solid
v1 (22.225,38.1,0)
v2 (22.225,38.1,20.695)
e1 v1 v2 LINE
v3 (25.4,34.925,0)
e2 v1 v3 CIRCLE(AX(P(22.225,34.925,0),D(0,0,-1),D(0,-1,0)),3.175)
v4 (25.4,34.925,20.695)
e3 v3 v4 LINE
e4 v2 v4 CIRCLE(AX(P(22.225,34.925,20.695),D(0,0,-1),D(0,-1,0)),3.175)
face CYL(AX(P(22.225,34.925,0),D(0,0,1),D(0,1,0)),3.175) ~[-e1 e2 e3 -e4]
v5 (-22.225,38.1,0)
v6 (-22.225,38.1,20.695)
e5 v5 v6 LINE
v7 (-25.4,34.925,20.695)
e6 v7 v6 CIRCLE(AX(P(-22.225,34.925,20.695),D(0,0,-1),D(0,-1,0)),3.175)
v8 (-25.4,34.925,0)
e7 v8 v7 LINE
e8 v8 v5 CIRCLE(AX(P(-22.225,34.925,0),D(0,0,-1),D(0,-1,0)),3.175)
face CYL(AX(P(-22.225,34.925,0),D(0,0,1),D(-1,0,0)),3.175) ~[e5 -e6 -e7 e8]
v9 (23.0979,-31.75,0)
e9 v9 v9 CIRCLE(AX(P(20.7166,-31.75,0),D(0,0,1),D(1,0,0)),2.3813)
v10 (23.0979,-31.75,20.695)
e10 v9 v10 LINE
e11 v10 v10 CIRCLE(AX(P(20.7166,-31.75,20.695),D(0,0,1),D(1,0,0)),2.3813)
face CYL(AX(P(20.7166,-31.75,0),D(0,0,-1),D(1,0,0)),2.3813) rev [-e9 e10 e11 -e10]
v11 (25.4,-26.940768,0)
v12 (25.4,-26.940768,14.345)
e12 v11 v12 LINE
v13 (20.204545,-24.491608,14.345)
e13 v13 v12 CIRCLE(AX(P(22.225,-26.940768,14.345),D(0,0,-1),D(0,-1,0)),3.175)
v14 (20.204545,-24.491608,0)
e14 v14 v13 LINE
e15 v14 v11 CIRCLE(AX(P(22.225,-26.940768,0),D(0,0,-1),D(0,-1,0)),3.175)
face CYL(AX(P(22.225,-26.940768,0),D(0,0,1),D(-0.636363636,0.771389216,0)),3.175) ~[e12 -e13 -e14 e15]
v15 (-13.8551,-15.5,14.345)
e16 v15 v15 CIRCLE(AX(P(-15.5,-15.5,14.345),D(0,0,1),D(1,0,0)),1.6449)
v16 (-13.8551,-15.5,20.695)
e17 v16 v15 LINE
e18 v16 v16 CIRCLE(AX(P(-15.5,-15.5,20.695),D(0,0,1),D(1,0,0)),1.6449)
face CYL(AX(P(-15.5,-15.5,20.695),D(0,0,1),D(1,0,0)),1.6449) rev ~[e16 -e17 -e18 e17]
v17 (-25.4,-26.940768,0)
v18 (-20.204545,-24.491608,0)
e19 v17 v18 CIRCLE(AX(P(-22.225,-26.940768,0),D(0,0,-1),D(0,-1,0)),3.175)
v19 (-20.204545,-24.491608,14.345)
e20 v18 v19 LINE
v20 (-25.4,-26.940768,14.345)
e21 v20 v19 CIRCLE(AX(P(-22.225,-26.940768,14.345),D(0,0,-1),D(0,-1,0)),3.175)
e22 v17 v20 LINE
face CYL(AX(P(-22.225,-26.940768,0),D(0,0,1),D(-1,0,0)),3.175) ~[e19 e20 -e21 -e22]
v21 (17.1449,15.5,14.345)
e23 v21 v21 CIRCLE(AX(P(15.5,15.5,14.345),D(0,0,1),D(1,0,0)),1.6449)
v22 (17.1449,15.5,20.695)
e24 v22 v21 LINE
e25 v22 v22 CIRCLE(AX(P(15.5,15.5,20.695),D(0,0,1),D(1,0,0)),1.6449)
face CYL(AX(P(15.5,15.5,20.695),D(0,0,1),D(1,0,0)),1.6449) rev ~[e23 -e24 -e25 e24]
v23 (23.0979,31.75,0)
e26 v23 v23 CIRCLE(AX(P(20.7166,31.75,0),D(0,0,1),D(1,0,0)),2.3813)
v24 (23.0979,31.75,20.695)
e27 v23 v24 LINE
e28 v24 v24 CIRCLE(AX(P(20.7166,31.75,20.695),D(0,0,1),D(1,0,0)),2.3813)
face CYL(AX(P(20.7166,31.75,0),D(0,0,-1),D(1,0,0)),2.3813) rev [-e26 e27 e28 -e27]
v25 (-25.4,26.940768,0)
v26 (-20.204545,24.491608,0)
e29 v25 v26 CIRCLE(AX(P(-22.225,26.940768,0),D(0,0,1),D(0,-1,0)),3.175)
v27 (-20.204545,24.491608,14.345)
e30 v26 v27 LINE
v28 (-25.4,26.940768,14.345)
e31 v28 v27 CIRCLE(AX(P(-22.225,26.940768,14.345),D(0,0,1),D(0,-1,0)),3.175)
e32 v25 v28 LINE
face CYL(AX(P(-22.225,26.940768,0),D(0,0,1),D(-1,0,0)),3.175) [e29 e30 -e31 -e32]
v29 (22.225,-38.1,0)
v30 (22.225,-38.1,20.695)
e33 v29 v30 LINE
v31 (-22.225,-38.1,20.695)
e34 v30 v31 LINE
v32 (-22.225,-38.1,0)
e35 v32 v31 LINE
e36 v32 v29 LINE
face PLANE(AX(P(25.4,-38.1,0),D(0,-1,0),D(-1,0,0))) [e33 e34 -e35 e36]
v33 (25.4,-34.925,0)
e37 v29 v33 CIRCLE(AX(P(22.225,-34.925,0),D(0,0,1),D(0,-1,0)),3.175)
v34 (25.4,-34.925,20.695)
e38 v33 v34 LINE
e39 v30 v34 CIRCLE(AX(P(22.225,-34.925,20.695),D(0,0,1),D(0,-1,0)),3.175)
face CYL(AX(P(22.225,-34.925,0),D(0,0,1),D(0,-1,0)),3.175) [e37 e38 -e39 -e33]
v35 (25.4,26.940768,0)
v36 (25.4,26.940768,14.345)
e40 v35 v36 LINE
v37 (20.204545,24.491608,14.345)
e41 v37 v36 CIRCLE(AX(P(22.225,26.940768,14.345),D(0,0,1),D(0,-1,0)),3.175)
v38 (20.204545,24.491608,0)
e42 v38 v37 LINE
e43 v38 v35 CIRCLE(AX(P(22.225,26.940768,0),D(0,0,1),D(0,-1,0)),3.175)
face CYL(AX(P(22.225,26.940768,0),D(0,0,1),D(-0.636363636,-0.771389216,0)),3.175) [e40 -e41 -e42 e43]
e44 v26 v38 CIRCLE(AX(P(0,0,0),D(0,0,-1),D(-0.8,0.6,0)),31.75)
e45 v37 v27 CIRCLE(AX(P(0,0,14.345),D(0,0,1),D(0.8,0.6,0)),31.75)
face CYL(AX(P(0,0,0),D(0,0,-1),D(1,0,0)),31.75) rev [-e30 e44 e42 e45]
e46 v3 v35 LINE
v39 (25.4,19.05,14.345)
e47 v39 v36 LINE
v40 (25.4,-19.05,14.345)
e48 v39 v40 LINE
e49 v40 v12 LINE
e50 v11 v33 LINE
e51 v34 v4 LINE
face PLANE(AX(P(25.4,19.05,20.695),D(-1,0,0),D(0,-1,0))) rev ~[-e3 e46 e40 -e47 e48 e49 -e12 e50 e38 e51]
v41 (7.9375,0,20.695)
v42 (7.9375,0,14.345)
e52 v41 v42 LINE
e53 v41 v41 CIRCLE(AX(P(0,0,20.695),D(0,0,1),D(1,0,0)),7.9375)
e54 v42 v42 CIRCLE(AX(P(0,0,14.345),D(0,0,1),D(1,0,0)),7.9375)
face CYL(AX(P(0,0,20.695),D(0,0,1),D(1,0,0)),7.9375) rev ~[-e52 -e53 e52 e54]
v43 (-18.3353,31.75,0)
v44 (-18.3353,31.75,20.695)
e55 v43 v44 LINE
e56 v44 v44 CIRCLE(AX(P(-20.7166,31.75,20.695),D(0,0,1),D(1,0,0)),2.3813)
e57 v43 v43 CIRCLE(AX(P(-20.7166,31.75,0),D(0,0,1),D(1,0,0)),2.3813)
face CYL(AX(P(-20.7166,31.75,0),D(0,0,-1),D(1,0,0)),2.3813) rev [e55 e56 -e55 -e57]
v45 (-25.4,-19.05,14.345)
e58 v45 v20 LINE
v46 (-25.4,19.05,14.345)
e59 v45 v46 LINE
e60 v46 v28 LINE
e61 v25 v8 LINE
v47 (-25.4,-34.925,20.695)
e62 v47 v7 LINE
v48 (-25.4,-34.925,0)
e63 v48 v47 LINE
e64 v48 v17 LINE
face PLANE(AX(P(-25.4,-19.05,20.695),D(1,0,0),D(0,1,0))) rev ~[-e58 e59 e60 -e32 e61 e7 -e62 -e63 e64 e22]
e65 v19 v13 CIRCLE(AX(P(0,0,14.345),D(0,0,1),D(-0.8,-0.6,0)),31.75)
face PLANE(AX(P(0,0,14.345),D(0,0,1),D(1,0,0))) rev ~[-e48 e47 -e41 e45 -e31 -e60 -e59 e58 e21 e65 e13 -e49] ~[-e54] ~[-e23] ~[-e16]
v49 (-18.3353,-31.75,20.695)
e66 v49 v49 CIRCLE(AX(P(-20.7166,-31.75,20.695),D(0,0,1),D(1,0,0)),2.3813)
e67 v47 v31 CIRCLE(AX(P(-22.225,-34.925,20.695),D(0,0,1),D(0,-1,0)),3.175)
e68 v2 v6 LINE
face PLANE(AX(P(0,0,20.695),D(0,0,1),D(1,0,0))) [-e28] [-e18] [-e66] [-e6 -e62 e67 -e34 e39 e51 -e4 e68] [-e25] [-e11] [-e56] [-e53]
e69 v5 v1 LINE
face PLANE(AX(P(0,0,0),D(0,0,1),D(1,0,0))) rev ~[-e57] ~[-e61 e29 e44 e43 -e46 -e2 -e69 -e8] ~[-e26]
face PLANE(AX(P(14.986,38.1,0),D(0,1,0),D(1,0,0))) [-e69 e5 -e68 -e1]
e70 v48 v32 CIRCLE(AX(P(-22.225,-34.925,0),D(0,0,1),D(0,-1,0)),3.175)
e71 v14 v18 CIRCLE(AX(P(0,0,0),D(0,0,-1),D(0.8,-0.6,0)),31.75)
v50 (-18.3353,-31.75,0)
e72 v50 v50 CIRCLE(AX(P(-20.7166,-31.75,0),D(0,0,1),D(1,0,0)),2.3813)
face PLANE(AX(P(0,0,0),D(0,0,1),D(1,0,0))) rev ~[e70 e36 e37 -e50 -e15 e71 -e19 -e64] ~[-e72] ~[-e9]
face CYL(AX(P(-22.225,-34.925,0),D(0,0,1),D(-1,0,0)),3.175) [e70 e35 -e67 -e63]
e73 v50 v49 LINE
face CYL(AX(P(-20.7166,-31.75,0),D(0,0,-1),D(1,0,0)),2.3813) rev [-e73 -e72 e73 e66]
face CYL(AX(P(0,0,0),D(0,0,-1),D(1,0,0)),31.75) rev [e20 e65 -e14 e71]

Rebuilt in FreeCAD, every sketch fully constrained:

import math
import FreeCAD as App
import Part
import Sketcher

V = App.Vector
Q = App.Units.Quantity


def edges_at(feature, points):
    """Names of the edges that pass closest to the given points."""
    edges = feature.Shape.Edges
    near = lambda p: min(range(len(edges)), key=lambda i: edges[i].distToShape(Part.Vertex(*p))[0])
    return sorted({f"Edge{near(p) + 1}" for p in points})

doc = App.newDocument("Part")
body = doc.addObject("PartDesign::Body", "Body")
body.AllowCompound = True

sketch1 = doc.addObject("Sketcher::SketchObject", "Sketch")
body.addObject(sketch1)
sketch1.AttachmentSupport = (doc.XY_Plane, [""])
sketch1.MapMode = "FlatFace"
sketch1.addGeometry(Part.LineSegment(V(25.4, 19.05, 0), V(25.4, 38.1, 0)), False)
sketch1.addGeometry(Part.LineSegment(V(25.4, 38.1, 0), V(-25.4, 38.1, 0)), False)
sketch1.addGeometry(Part.LineSegment(V(-25.4, 38.1, 0), V(-25.4, 19.05, 0)), False)
sketch1.addGeometry(Part.ArcOfCircle(Part.Circle(V(0, 0, 0), V(0, 0, 1), 31.75), math.radians(36.869898), math.radians(143.130102)), False)
sketch1.addGeometry(Part.Circle(V(20.7166, 31.75, 0), V(0, 0, 1), 2.3813), False)
sketch1.addGeometry(Part.Circle(V(-20.7166, 31.75, 0), V(0, 0, 1), 2.3813), False)
sketch1.addGeometry(Part.LineSegment(V(25.4, -38.1, 0), V(25.4, -19.05, 0)), False)
sketch1.addGeometry(Part.ArcOfCircle(Part.Circle(V(0, 0, 0), V(0, 0, 1), 31.75), math.radians(-143.130102), math.radians(-36.869898)), False)
sketch1.addGeometry(Part.LineSegment(V(-25.4, -19.05, 0), V(-25.4, -38.1, 0)), False)
sketch1.addGeometry(Part.LineSegment(V(-25.4, -38.1, 0), V(25.4, -38.1, 0)), False)
sketch1.addGeometry(Part.Circle(V(20.7166, -31.75, 0), V(0, 0, 1), 2.3813), False)
sketch1.addGeometry(Part.Circle(V(-20.7166, -31.75, 0), V(0, 0, 1), 2.3813), False)
sketch1.addConstraint(Sketcher.Constraint("Coincident", 0, 2, 1, 1))
sketch1.addConstraint(Sketcher.Constraint("Coincident", 1, 2, 2, 1))
sketch1.addConstraint(Sketcher.Constraint("Coincident", 2, 2, 3, 2))
sketch1.addConstraint(Sketcher.Constraint("Coincident", 3, 1, 0, 1))
sketch1.addConstraint(Sketcher.Constraint("Coincident", 6, 2, 7, 2))
sketch1.addConstraint(Sketcher.Constraint("Coincident", 7, 1, 8, 1))
sketch1.addConstraint(Sketcher.Constraint("Coincident", 8, 2, 9, 1))
sketch1.addConstraint(Sketcher.Constraint("Coincident", 9, 2, 6, 1))
sketch1.addConstraint(Sketcher.Constraint("Vertical", 0))
sketch1.addConstraint(Sketcher.Constraint("Horizontal", 1))
sketch1.addConstraint(Sketcher.Constraint("Vertical", 2))
sketch1.addConstraint(Sketcher.Constraint("Vertical", 6))
sketch1.addConstraint(Sketcher.Constraint("Vertical", 8))
sketch1.addConstraint(Sketcher.Constraint("Horizontal", 9))
sketch1.addConstraint(Sketcher.Constraint("Coincident", 3, 3, -1, 1))
sketch1.addConstraint(Sketcher.Constraint("Coincident", 7, 3, -1, 1))
sketch1.addConstraint(Sketcher.Constraint("Equal", 4, 5))
sketch1.addConstraint(Sketcher.Constraint("Equal", 3, 7))
sketch1.addConstraint(Sketcher.Constraint("Equal", 5, 10))
sketch1.addConstraint(Sketcher.Constraint("Equal", 10, 11))
sketch1.addConstraint(Sketcher.Constraint("Symmetric", 5, 3, 10, 3, -1, 1))
sketch1.addConstraint(Sketcher.Constraint("Symmetric", 4, 3, 11, 3, -1, 1))
sketch1.addConstraint(Sketcher.Constraint("Symmetric", 0, 2, 8, 2, -1, 1))
sketch1.addConstraint(Sketcher.Constraint("Symmetric", 4, 3, 5, 3, -2))
sketch1.addConstraint(Sketcher.Constraint("Horizontal", 2, 2, 3, 1))
sketch1.addConstraint(Sketcher.Constraint("Horizontal", 6, 2, 7, 1))
sketch1.addConstraint(Sketcher.Constraint("DistanceX", 1, 2, 1, 1, Q("2 in")))
sketch1.addConstraint(Sketcher.Constraint("Radius", 3, Q("1.25 in")))
sketch1.addConstraint(Sketcher.Constraint("Diameter", 4, Q("0.1875 in")))
sketch1.addConstraint(Sketcher.Constraint("DistanceY", 0, 1, 0, 2, Q("0.75 in")))
sketch1.addConstraint(Sketcher.Constraint("DistanceY", 10, 3, 4, 3, Q("2.5 in")))
sketch1.addConstraint(Sketcher.Constraint("DistanceX", -1, 1, 4, 3, Q("20.7166 mm")))
pad1 = doc.addObject("PartDesign::Pad", "Pad")
body.addObject(pad1)
pad1.Profile = sketch1
pad1.Length = 20.695

sketch2 = doc.addObject("Sketcher::SketchObject", "Sketch001")
body.addObject(sketch2)
sketch2.AttachmentSupport = (doc.XY_Plane, [""])
sketch2.MapMode = "FlatFace"
sketch2.AttachmentOffset = App.Placement(V(0, 0, 20.695), App.Rotation())
sketch2.addGeometry(Part.LineSegment(V(-25.4, 19.05, 0), V(-25.4, -19.05, 0)), False)
sketch2.addGeometry(Part.ArcOfCircle(Part.Circle(V(0, 0, 0), V(0, 0, 1), 31.75), math.radians(-143.130102), math.radians(-36.869898)), False)
sketch2.addGeometry(Part.LineSegment(V(25.4, -19.05, 0), V(25.4, 19.05, 0)), False)
sketch2.addGeometry(Part.ArcOfCircle(Part.Circle(V(0, 0, 0), V(0, 0, 1), 31.75), math.radians(36.869898), math.radians(143.130102)), False)
sketch2.addGeometry(Part.Circle(V(-15.5, -15.5, 0), V(0, 0, 1), 1.6449), False)
sketch2.addGeometry(Part.Circle(V(0, 0, 0), V(0, 0, 1), 7.9375), False)
sketch2.addGeometry(Part.Circle(V(15.5, 15.5, 0), V(0, 0, 1), 1.6449), False)
sketch2.addConstraint(Sketcher.Constraint("Coincident", 0, 2, 1, 1))
sketch2.addConstraint(Sketcher.Constraint("Coincident", 1, 2, 2, 1))
sketch2.addConstraint(Sketcher.Constraint("Coincident", 2, 2, 3, 1))
sketch2.addConstraint(Sketcher.Constraint("Coincident", 3, 2, 0, 1))
sketch2.addConstraint(Sketcher.Constraint("Vertical", 0))
sketch2.addConstraint(Sketcher.Constraint("Vertical", 2))
sketch2.addConstraint(Sketcher.Constraint("Coincident", 1, 3, -1, 1))
sketch2.addConstraint(Sketcher.Constraint("Coincident", 3, 3, -1, 1))
sketch2.addConstraint(Sketcher.Constraint("Coincident", 5, 3, -1, 1))
sketch2.addConstraint(Sketcher.Constraint("Equal", 1, 3))
sketch2.addConstraint(Sketcher.Constraint("Equal", 4, 6))
sketch2.addConstraint(Sketcher.Constraint("Symmetric", 4, 3, 6, 3, -1, 1))
sketch2.addConstraint(Sketcher.Constraint("Horizontal", 0, 2, 1, 2))
sketch2.addConstraint(Sketcher.Constraint("Diameter", 5, Q("0.625 in")))
sketch2.addConstraint(Sketcher.Constraint("Radius", 1, Q("1.25 in")))
sketch2.addConstraint(Sketcher.Constraint("DistanceY", 0, 2, 0, 1, Q("1.5 in")))
sketch2.addConstraint(Sketcher.Constraint("Diameter", 4, Q("3.2898 mm")))
sketch2.addConstraint(Sketcher.Constraint("DistanceX", 4, 3, -1, 1, Q("15.5 mm")))
sketch2.addConstraint(Sketcher.Constraint("DistanceY", 4, 3, -1, 1, Q("15.5 mm")))
pad2 = doc.addObject("PartDesign::Pad", "Pad001")
body.addObject(pad2)
pad2.Profile = sketch2
pad2.Length = Q("0.25 in")
pad2.Reversed = True
doc.recompute()

fillet = doc.addObject("PartDesign::Fillet", "Fillet")
body.addObject(fillet)
fillet.Base = (pad2, edges_at(pad2, [
    (-25.4, -19.05, 7.173),
    (-25.4, 19.05, 7.173),
    (-25.4, 38.1, 10.348),
    (25.4, 38.1, 10.348),
    (25.4, -38.1, 10.348),
    (-25.4, -38.1, 10.348),
    (25.4, 19.05, 7.173),
    (25.4, -19.05, 7.173),
]))
fillet.Radius = Q("0.125 in")

doc.recompute()
